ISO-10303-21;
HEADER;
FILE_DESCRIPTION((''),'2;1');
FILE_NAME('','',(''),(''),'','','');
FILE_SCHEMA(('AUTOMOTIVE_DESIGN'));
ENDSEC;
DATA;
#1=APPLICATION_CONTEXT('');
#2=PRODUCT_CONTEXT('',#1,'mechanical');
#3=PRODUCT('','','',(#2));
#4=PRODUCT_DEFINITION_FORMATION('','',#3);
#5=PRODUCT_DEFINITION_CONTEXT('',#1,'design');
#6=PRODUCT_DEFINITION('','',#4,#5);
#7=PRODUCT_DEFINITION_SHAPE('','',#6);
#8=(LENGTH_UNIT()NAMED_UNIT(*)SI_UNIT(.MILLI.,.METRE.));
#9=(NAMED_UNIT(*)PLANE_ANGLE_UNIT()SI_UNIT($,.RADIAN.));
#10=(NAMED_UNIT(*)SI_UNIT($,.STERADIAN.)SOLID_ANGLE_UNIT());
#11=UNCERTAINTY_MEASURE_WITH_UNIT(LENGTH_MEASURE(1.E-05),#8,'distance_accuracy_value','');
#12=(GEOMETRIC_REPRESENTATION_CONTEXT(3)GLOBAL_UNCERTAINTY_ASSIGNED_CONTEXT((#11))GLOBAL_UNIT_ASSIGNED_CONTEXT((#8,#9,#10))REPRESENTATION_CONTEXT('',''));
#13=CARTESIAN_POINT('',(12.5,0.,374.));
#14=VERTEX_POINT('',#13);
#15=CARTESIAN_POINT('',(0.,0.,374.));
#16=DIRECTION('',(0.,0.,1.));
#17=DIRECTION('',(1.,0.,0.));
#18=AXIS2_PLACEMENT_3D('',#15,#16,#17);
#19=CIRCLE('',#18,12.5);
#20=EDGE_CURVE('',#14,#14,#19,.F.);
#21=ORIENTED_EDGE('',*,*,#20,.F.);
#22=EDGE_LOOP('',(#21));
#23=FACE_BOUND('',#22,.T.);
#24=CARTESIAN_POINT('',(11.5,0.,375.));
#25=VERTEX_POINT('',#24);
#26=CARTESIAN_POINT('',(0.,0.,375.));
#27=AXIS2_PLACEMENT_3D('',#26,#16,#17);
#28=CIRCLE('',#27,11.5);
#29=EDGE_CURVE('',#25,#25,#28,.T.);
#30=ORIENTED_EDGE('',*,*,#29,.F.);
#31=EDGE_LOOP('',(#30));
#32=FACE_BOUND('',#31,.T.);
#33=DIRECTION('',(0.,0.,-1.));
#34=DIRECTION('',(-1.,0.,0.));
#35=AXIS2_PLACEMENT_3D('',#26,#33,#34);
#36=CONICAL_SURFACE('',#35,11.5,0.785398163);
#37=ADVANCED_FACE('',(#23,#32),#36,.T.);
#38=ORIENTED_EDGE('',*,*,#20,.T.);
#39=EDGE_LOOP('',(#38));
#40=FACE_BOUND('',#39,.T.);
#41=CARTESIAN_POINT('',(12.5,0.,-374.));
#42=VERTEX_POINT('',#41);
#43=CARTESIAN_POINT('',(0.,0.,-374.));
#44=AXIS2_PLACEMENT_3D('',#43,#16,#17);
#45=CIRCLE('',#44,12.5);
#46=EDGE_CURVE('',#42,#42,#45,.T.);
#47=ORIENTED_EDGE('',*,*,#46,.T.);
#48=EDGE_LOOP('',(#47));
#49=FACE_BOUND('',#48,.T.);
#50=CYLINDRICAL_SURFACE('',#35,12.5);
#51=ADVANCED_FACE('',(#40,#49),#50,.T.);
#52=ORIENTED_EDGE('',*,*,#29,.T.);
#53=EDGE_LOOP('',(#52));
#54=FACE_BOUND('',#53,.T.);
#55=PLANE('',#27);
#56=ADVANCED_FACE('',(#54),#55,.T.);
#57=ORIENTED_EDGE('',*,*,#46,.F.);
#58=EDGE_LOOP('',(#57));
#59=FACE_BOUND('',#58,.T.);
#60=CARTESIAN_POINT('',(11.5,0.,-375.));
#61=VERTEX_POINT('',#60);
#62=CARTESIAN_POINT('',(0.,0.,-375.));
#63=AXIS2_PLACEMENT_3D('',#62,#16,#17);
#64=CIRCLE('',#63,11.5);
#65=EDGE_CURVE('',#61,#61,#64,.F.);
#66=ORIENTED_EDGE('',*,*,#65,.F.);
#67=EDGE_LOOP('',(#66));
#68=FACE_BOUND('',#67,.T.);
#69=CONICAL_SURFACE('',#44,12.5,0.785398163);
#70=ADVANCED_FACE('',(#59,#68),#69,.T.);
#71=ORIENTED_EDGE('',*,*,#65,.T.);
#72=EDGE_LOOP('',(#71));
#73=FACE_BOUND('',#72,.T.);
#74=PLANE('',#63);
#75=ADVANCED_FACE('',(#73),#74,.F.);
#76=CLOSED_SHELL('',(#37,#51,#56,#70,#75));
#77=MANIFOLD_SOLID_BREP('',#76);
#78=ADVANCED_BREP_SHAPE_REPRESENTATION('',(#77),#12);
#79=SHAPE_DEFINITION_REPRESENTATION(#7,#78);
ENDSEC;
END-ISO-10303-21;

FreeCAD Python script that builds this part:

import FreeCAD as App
import Part
import Sketcher


def edges_at(feature, points):
    """Names of the edges that pass closest to the given points."""
    edges = feature.Shape.Edges
    near = lambda p: min(range(len(edges)), key=lambda i: edges[i].distToShape(Part.Vertex(*p))[0])
    return sorted({f"Edge{near(p) + 1}" for p in points})

doc = App.newDocument("Part")
params = doc.addObject("Spreadsheet::Sheet", "Params")
for row, (alias, value) in enumerate([
    ("sketch1_diameter", "25 mm"),
    ("pad1_length", "750 mm"),
    ("chamfer_size", "1 mm"),
], start=1):
    params.set(f"A{row}", alias)
    params.set(f"B{row}", "=" + value)
    params.setAlias(f"B{row}", alias)

body = doc.addObject("PartDesign::Body", "Body")

# Sketch on XY plane
sketch1 = doc.addObject("Sketcher::SketchObject", "Sketch")
body.addObject(sketch1)
sketch1.AttachmentSupport = (doc.XY_Plane, [""])
sketch1.MapMode = "FlatFace"
sketch1.addGeometry(Part.Circle(App.Vector(0, 0, 0), App.Vector(0, 0, 1), 12), False)
sketch1.addConstraint([
    Sketcher.Constraint("Coincident", 0, 3, -1, 1),
    Sketcher.Constraint("Diameter", 0, 25.0),
])
sketch1.setExpression("Constraints[1]", "Params.sketch1_diameter")
pad1 = doc.addObject("PartDesign::Pad", "Pad")
body.addObject(pad1)
pad1.Profile = sketch1
pad1.setExpression("Length", "Params.pad1_length")
pad1.Midplane = True
doc.recompute()

chamfer = doc.addObject("PartDesign::Chamfer", "Chamfer")
body.addObject(chamfer)
chamfer.Base = (pad1, edges_at(pad1, [(-12.5, 0, -375), (-12.5, 0, 375)]))
chamfer.setExpression("Size", "Params.chamfer_size")

doc.recompute()
